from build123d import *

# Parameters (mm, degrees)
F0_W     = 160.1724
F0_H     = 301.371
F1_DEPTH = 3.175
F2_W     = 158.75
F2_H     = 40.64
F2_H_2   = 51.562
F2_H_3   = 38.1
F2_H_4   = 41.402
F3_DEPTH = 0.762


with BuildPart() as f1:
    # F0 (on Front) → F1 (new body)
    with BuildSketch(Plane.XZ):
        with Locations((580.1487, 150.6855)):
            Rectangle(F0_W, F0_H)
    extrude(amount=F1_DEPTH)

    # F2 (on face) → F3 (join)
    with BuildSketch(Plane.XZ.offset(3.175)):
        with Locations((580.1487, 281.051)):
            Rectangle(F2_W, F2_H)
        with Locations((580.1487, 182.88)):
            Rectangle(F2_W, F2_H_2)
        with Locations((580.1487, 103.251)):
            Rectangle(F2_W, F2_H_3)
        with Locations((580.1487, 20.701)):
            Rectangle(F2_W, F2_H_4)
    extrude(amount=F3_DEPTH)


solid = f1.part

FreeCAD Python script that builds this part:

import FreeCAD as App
import Part
import Sketcher
Q = App.Units.Quantity

doc = App.newDocument("Part")
body = doc.addObject("PartDesign::Body", "Body")

# Sketch on XZ plane
sketch1 = body.newObject("Sketcher::SketchObject", "Sketch")
sketch1.AttachmentSupport = (doc.getObject("XZ_Plane"), [""])
sketch1.MapMode = "FlatFace"
sketch1.addGeometry(Part.LineSegment(App.Vector(500.0625, 301.371, 0), App.Vector(500.0625, 0, 0)), False)
sketch1.addGeometry(Part.LineSegment(App.Vector(500.0625, 0, 0), App.Vector(660.2349, 0, 0)), False)
sketch1.addGeometry(Part.LineSegment(App.Vector(660.2349, 0, 0), App.Vector(660.2349, 301.371, 0)), False)
sketch1.addGeometry(Part.LineSegment(App.Vector(660.2349, 301.371, 0), App.Vector(500.0625, 301.371, 0)), False)
sketch1.addConstraint(Sketcher.Constraint("Coincident", 0, 2, 1, 1))
sketch1.addConstraint(Sketcher.Constraint("Coincident", 1, 2, 2, 1))
sketch1.addConstraint(Sketcher.Constraint("Coincident", 2, 2, 3, 1))
sketch1.addConstraint(Sketcher.Constraint("Coincident", 3, 2, 0, 1))
sketch1.addConstraint(Sketcher.Constraint("Vertical", 0))
sketch1.addConstraint(Sketcher.Constraint("Horizontal", 1))
sketch1.addConstraint(Sketcher.Constraint("Vertical", 2))
sketch1.addConstraint(Sketcher.Constraint("Horizontal", 3))
sketch1.addConstraint(Sketcher.Constraint("PointOnObject", 0, 2, -1))
sketch1.addConstraint(Sketcher.Constraint("DistanceX", 1, 1, 1, 2, Q("6.306 in")))
sketch1.addConstraint(Sketcher.Constraint("DistanceY", 0, 2, 0, 1, Q("11.865 in")))
sketch1.addConstraint(Sketcher.Constraint("DistanceX", -1, 1, 0, 2, Q("19.6875 in")))
pad1 = body.newObject("PartDesign::Pad", "Pad")
pad1.Profile = sketch1
pad1.Length = Q("0.125 in")

# Sketch on XZ plane
sketch2 = body.newObject("Sketcher::SketchObject", "Sketch001")
sketch2.AttachmentSupport = (doc.getObject("XZ_Plane"), [""])
sketch2.MapMode = "FlatFace"
sketch2.AttachmentOffset = App.Placement(App.Vector(0, 0, 0.125 * 25.4), App.Rotation())
sketch2.addGeometry(Part.LineSegment(App.Vector(500.7737, 301.371, 0), App.Vector(500.7737, 260.731, 0)), False)
sketch2.addGeometry(Part.LineSegment(App.Vector(500.7737, 260.731, 0), App.Vector(659.5237, 260.731, 0)), False)
sketch2.addGeometry(Part.LineSegment(App.Vector(659.5237, 260.731, 0), App.Vector(659.5237, 301.371, 0)), False)
sketch2.addGeometry(Part.LineSegment(App.Vector(659.5237, 301.371, 0), App.Vector(500.7737, 301.371, 0)), False)
sketch2.addGeometry(Part.LineSegment(App.Vector(500.7737, 208.661, 0), App.Vector(500.7737, 157.099, 0)), False)
sketch2.addGeometry(Part.LineSegment(App.Vector(500.7737, 157.099, 0), App.Vector(659.5237, 157.099, 0)), False)
sketch2.addGeometry(Part.LineSegment(App.Vector(659.5237, 157.099, 0), App.Vector(659.5237, 208.661, 0)), False)
sketch2.addGeometry(Part.LineSegment(App.Vector(659.5237, 208.661, 0), App.Vector(500.7737, 208.661, 0)), False)
sketch2.addGeometry(Part.LineSegment(App.Vector(500.7737, 122.301, 0), App.Vector(500.7737, 84.201, 0)), False)
sketch2.addGeometry(Part.LineSegment(App.Vector(500.7737, 84.201, 0), App.Vector(659.5237, 84.201, 0)), False)
sketch2.addGeometry(Part.LineSegment(App.Vector(659.5237, 84.201, 0), App.Vector(659.5237, 122.301, 0)), False)
sketch2.addGeometry(Part.LineSegment(App.Vector(659.5237, 122.301, 0), App.Vector(500.7737, 122.301, 0)), False)
sketch2.addGeometry(Part.LineSegment(App.Vector(500.7737, 41.402, 0), App.Vector(500.7737, 0, 0)), False)
sketch2.addGeometry(Part.LineSegment(App.Vector(500.7737, 0, 0), App.Vector(659.5237, 0, 0)), False)
sketch2.addGeometry(Part.LineSegment(App.Vector(659.5237, 0, 0), App.Vector(659.5237, 41.402, 0)), False)
sketch2.addGeometry(Part.LineSegment(App.Vector(659.5237, 41.402, 0), App.Vector(500.7737, 41.402, 0)), False)
sketch2.addConstraint(Sketcher.Constraint("Coincident", 0, 2, 1, 1))
sketch2.addConstraint(Sketcher.Constraint("Coincident", 1, 2, 2, 1))
sketch2.addConstraint(Sketcher.Constraint("Coincident", 2, 2, 3, 1))
sketch2.addConstraint(Sketcher.Constraint("Coincident", 3, 2, 0, 1))
sketch2.addConstraint(Sketcher.Constraint("Coincident", 4, 2, 5, 1))
sketch2.addConstraint(Sketcher.Constraint("Coincident", 5, 2, 6, 1))
sketch2.addConstraint(Sketcher.Constraint("Coincident", 6, 2, 7, 1))
sketch2.addConstraint(Sketcher.Constraint("Coincident", 7, 2, 4, 1))
sketch2.addConstraint(Sketcher.Constraint("Coincident", 8, 2, 9, 1))
sketch2.addConstraint(Sketcher.Constraint("Coincident", 9, 2, 10, 1))
sketch2.addConstraint(Sketcher.Constraint("Coincident", 10, 2, 11, 1))
sketch2.addConstraint(Sketcher.Constraint("Coincident", 11, 2, 8, 1))
sketch2.addConstraint(Sketcher.Constraint("Coincident", 12, 2, 13, 1))
sketch2.addConstraint(Sketcher.Constraint("Coincident", 13, 2, 14, 1))
sketch2.addConstraint(Sketcher.Constraint("Coincident", 14, 2, 15, 1))
sketch2.addConstraint(Sketcher.Constraint("Coincident", 15, 2, 12, 1))
sketch2.addConstraint(Sketcher.Constraint("Vertical", 0))
sketch2.addConstraint(Sketcher.Constraint("Horizontal", 1))
sketch2.addConstraint(Sketcher.Constraint("Vertical", 2))
sketch2.addConstraint(Sketcher.Constraint("Horizontal", 3))
sketch2.addConstraint(Sketcher.Constraint("Vertical", 4))
sketch2.addConstraint(Sketcher.Constraint("Horizontal", 5))
sketch2.addConstraint(Sketcher.Constraint("Vertical", 6))
sketch2.addConstraint(Sketcher.Constraint("Horizontal", 7))
sketch2.addConstraint(Sketcher.Constraint("Vertical", 8))
sketch2.addConstraint(Sketcher.Constraint("Horizontal", 9))
sketch2.addConstraint(Sketcher.Constraint("Vertical", 10))
sketch2.addConstraint(Sketcher.Constraint("Horizontal", 11))
sketch2.addConstraint(Sketcher.Constraint("Vertical", 12))
sketch2.addConstraint(Sketcher.Constraint("Horizontal", 13))
sketch2.addConstraint(Sketcher.Constraint("Vertical", 14))
sketch2.addConstraint(Sketcher.Constraint("Horizontal", 15))
sketch2.addConstraint(Sketcher.Constraint("PointOnObject", 12, 2, -1))
sketch2.addConstraint(Sketcher.Constraint("Vertical", 3, 2, 4, 2))
sketch2.addConstraint(Sketcher.Constraint("Vertical", 2, 2, 5, 2))
sketch2.addConstraint(Sketcher.Constraint("Vertical", 7, 2, 8, 2))
sketch2.addConstraint(Sketcher.Constraint("Vertical", 6, 2, 9, 2))
sketch2.addConstraint(Sketcher.Constraint("Vertical", 11, 2, 12, 2))
sketch2.addConstraint(Sketcher.Constraint("Vertical", 10, 2, 13, 2))
sketch2.addConstraint(Sketcher.Constraint("DistanceY", 0, 2, 0, 1, Q("1.6 in")))
sketch2.addConstraint(Sketcher.Constraint("DistanceY", 8, 2, 8, 1, Q("1.5 in")))
sketch2.addConstraint(Sketcher.Constraint("DistanceX", 1, 1, 1, 2, Q("6.25 in")))
sketch2.addConstraint(Sketcher.Constraint("DistanceY", 4, 2, 4, 1, Q("2.03 in")))
sketch2.addConstraint(Sketcher.Constraint("DistanceY", 12, 2, 12, 1, Q("1.63 in")))
sketch2.addConstraint(Sketcher.Constraint("DistanceY", 8, 2, 7, 2, Q("4.9 in")))
sketch2.addConstraint(Sketcher.Constraint("DistanceY", 4, 2, 0, 2, Q("4.08 in")))
sketch2.addConstraint(Sketcher.Constraint("DistanceY", -1, 1, 0, 2, Q("10.265 in")))
sketch2.addConstraint(Sketcher.Constraint("DistanceX", -1, 1, 0, 2, Q("19.7155 in")))
pad2 = body.newObject("PartDesign::Pad", "Pad001")
pad2.Profile = sketch2
pad2.Length = Q("0.03 in")

doc.recompute()
